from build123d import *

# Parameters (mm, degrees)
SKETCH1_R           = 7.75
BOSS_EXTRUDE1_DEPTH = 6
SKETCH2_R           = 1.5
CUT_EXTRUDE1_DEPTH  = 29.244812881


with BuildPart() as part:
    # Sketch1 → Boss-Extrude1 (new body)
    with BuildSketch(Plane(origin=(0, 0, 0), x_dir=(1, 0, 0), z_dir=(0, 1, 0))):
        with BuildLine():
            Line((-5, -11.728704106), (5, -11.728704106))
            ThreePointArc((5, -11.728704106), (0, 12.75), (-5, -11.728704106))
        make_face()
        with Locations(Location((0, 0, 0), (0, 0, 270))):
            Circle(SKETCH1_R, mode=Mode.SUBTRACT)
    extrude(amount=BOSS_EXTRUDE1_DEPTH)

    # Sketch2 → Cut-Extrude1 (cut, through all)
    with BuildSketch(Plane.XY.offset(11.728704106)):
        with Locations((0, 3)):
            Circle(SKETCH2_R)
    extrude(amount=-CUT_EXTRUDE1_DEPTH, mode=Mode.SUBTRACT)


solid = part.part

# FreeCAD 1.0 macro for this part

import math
import FreeCAD as App
import Part
import Sketcher
Q = App.Units.Quantity

doc = App.newDocument("Part")
body = doc.addObject("PartDesign::Body", "Body")

# Sketch on XZ plane
sketch1 = doc.addObject("Sketcher::SketchObject", "Sketch")
body.addObject(sketch1)
sketch1.AttachmentSupport = (doc.XZ_Plane, [""])
sketch1.MapMode = "FlatFace"
sketch1.addGeometry([
    Part.LineSegment(App.Vector(-5, 11.728704, 0), App.Vector(5, 11.728704, 0)),
    Part.ArcOfCircle(Part.Circle(App.Vector(0, 0, 0), App.Vector(0, 0, 1), 12.75), math.radians(113.088772), math.radians(426.911228)),
    Part.Circle(App.Vector(0, 0, 0), App.Vector(0, 0, 1), 7.75),
], False)
sketch1.addConstraint([
    Sketcher.Constraint("Coincident", 0, 1, 1, 1),
    Sketcher.Constraint("Coincident", 1, 2, 0, 2),
    Sketcher.Constraint("Horizontal", 0),
    Sketcher.Constraint("Coincident", 1, 3, -1, 1),
    Sketcher.Constraint("Coincident", 2, 3, -1, 1),
    Sketcher.Constraint("Diameter", 2, Q("15.5 mm")),
    Sketcher.Constraint("DistanceX", 0, 1, 0, 2, Q("10 mm")),
    Sketcher.Constraint("Radius", 1, Q("12.75 mm")),
])
pad1 = doc.addObject("PartDesign::Pad", "Pad")
body.addObject(pad1)
pad1.Profile = sketch1
pad1.Length = 6
pad1.Reversed = True

# Sketch on XY plane
sketch2 = doc.addObject("Sketcher::SketchObject", "Sketch001")
body.addObject(sketch2)
sketch2.AttachmentSupport = (doc.XY_Plane, [""])
sketch2.MapMode = "FlatFace"
sketch2.AttachmentOffset = App.Placement(App.Vector(0, 0, 11.728704), App.Rotation())
sketch2.addGeometry(Part.Circle(App.Vector(0, 3, 0), App.Vector(0, 0, 1), 1.5), False)
sketch2.addConstraint([
    Sketcher.Constraint("PointOnObject", 0, 3, -2),
    Sketcher.Constraint("Diameter", 0, Q("3 mm")),
    Sketcher.Constraint("DistanceY", -1, 1, 0, 3, Q("3 mm")),
])
pocket1 = doc.addObject("PartDesign::Pocket", "Pocket")
body.addObject(pocket1)
pocket1.Profile = sketch2
pocket1.Type = "ThroughAll"

doc.recompute()
